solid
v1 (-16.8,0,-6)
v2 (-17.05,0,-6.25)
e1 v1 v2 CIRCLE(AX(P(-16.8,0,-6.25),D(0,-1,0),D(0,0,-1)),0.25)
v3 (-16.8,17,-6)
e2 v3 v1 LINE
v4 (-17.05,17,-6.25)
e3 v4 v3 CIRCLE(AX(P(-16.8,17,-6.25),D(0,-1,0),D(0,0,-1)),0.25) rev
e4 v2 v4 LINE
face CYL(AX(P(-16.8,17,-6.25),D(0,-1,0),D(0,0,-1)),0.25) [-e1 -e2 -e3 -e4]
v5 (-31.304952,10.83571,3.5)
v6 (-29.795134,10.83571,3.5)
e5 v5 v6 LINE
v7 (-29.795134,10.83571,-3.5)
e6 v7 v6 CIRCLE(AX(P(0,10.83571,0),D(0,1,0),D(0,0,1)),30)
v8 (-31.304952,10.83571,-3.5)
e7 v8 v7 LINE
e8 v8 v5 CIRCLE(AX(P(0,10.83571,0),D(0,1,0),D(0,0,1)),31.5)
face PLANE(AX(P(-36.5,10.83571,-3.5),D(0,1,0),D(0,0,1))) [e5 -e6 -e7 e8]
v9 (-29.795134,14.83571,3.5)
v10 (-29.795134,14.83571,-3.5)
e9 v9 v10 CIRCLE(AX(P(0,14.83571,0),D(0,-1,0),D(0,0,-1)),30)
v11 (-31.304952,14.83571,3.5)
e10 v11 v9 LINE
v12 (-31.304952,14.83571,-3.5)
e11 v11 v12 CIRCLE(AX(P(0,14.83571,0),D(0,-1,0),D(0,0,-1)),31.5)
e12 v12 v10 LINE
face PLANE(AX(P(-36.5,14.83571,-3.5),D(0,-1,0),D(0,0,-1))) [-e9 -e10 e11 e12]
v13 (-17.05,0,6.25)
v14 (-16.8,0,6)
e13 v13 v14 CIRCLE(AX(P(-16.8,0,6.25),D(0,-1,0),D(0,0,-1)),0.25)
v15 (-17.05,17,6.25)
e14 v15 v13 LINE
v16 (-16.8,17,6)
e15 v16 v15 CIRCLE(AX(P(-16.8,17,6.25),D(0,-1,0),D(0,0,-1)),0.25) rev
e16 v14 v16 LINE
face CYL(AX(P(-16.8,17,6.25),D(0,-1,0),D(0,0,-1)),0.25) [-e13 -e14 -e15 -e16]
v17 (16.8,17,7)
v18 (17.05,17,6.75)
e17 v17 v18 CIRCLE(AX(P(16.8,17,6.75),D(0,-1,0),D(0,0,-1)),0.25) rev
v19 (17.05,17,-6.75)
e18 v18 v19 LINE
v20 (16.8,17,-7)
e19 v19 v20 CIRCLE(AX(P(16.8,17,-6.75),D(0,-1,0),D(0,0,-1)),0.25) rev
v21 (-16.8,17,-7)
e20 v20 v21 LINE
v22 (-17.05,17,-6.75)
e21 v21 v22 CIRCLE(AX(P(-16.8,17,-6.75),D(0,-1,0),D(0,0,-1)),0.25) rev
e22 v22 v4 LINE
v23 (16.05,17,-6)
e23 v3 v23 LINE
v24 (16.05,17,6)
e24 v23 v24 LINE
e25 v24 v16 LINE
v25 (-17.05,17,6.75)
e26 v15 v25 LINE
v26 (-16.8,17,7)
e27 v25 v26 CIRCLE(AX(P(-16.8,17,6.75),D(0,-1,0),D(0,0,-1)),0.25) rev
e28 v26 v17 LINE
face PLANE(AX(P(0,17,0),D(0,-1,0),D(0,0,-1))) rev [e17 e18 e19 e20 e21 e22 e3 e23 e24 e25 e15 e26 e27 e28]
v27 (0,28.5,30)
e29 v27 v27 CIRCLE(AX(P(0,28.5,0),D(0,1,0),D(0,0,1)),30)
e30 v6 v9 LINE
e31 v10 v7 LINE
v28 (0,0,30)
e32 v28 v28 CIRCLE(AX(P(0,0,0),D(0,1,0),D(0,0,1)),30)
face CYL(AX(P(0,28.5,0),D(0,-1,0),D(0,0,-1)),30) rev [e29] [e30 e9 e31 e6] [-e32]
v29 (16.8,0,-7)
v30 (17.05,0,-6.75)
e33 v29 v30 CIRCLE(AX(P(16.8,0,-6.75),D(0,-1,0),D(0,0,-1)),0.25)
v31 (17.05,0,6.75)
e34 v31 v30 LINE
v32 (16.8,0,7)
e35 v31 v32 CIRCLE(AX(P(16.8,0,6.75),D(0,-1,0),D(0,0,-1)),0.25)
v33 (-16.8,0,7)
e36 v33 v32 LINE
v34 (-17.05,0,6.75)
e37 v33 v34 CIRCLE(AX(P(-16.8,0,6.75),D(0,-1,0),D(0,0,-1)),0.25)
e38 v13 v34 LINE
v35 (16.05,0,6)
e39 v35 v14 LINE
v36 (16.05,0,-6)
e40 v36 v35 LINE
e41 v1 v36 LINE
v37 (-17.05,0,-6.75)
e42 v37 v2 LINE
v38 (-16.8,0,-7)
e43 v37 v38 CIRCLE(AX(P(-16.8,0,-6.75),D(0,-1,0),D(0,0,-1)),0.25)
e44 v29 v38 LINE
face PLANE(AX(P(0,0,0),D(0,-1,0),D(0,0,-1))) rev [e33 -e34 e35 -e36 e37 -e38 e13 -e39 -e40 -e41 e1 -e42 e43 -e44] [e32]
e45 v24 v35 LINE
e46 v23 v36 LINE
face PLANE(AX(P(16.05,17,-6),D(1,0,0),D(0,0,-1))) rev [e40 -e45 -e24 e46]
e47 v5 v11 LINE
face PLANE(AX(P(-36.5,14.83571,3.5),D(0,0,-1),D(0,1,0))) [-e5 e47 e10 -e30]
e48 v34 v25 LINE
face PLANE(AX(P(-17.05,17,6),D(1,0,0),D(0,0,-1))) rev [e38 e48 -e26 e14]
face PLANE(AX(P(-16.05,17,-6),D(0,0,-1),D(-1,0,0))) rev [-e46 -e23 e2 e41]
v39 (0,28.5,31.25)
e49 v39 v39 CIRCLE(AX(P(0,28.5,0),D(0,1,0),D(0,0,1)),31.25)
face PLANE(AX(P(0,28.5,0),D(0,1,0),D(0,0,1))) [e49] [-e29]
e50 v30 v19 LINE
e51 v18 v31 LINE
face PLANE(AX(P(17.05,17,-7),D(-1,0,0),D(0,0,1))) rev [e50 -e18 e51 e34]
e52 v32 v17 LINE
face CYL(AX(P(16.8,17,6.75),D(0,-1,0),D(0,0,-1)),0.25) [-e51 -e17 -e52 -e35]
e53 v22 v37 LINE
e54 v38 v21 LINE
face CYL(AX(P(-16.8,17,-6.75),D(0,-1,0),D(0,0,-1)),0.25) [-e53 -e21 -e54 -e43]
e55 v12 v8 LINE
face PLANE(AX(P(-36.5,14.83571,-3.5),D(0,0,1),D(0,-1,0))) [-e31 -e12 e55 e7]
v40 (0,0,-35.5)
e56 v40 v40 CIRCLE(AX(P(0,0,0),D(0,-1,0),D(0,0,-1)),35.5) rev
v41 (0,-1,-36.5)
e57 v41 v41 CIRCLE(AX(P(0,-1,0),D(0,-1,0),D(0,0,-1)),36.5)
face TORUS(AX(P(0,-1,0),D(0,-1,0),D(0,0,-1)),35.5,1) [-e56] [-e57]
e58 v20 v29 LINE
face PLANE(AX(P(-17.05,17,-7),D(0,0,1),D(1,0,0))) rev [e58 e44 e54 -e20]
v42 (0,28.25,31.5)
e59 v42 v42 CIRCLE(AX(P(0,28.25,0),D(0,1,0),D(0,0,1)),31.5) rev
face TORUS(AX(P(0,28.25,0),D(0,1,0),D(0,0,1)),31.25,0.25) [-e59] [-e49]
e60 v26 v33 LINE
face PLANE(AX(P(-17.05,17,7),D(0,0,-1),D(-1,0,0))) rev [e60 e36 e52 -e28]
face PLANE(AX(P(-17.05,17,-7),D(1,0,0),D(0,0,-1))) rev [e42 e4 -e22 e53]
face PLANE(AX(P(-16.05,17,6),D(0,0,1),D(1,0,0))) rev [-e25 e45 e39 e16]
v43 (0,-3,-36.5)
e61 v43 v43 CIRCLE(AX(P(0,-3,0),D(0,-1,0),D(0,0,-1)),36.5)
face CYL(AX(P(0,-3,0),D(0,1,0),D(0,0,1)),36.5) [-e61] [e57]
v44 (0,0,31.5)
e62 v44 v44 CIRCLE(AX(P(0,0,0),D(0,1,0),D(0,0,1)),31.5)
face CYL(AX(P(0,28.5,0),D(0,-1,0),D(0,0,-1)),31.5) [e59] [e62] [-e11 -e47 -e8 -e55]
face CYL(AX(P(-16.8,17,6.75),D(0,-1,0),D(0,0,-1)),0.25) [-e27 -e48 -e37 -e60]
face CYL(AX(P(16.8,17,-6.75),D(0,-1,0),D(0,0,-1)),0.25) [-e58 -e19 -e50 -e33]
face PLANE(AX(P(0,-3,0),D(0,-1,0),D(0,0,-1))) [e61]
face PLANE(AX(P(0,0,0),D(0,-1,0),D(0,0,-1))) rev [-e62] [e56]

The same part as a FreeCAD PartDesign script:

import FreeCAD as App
import Part
import Sketcher
from FreeCAD import Vector


def edges_at(feature, points):
    """Names of the edges that pass closest to the given points."""
    edges = feature.Shape.Edges
    near = lambda p: min(range(len(edges)), key=lambda i: edges[i].distToShape(Part.Vertex(*p))[0])
    return sorted({f"Edge{near(p) + 1}" for p in points})

doc = App.newDocument("Part")
body = doc.addObject("PartDesign::Body", "Body")

sketch1 = body.newObject("Sketcher::SketchObject", "Sketch")
sketch1.AttachmentSupport = (doc.getObject("XZ_Plane"), [""])
sketch1.MapMode = "FlatFace"
sketch1.addGeometry(Part.Circle(Vector(0, 0, 0), Vector(0, 0, 1), 31.5), False)
sketch1.addGeometry(Part.Circle(Vector(0, 0, 0), Vector(0, 0, 1), 30), False)
sketch1.addConstraint(Sketcher.Constraint("Coincident", 0, 3, -1, 1))
sketch1.addConstraint(Sketcher.Constraint("Coincident", 1, 3, -1, 1))
sketch1.addConstraint(Sketcher.Constraint("Diameter", 0, 63.0))
sketch1.addConstraint(Sketcher.Constraint("Diameter", 1, 60.0))
pad1 = body.newObject("PartDesign::Pad", "Pad")
pad1.Profile = sketch1
pad1.Length = 28.5
pad1.Reversed = True

sketch2 = body.newObject("Sketcher::SketchObject", "Sketch001")
sketch2.AttachmentSupport = (doc.getObject("XZ_Plane"), [""])
sketch2.MapMode = "FlatFace"
sketch2.addGeometry(Part.Circle(Vector(0, 0, 0), Vector(0, 0, 1), 36.5), False)
sketch2.addConstraint(Sketcher.Constraint("Coincident", 0, 3, -1, 1))
sketch2.addConstraint(Sketcher.Constraint("Diameter", 0, 73.0))
pad2 = body.newObject("PartDesign::Pad", "Pad001")
pad2.Profile = sketch2
pad2.Length = 3

sketch3 = body.newObject("Sketcher::SketchObject", "Sketch002")
sketch3.AttachmentSupport = (doc.getObject("XZ_Plane"), [""])
sketch3.MapMode = "FlatFace"
sketch3.addGeometry(Part.LineSegment(Vector(-17.05, -6, 0), Vector(16.05, -6, 0)), False)
sketch3.addGeometry(Part.LineSegment(Vector(16.05, -6, 0), Vector(16.05, 6, 0)), False)
sketch3.addGeometry(Part.LineSegment(Vector(16.05, 6, 0), Vector(-17.05, 6, 0)), False)
sketch3.addGeometry(Part.LineSegment(Vector(-17.05, 6, 0), Vector(-17.05, 7, 0)), False)
sketch3.addGeometry(Part.LineSegment(Vector(-17.05, 7, 0), Vector(17.05, 7, 0)), False)
sketch3.addGeometry(Part.LineSegment(Vector(17.05, 7, 0), Vector(17.05, -7, 0)), False)
sketch3.addGeometry(Part.LineSegment(Vector(17.05, -7, 0), Vector(-17.05, -7, 0)), False)
sketch3.addGeometry(Part.LineSegment(Vector(-17.05, -7, 0), Vector(-17.05, -6, 0)), False)
sketch3.addConstraint(Sketcher.Constraint("Coincident", 0, 2, 1, 1))
sketch3.addConstraint(Sketcher.Constraint("Coincident", 1, 2, 2, 1))
sketch3.addConstraint(Sketcher.Constraint("Coincident", 2, 2, 3, 1))
sketch3.addConstraint(Sketcher.Constraint("Coincident", 3, 2, 4, 1))
sketch3.addConstraint(Sketcher.Constraint("Coincident", 4, 2, 5, 1))
sketch3.addConstraint(Sketcher.Constraint("Coincident", 5, 2, 6, 1))
sketch3.addConstraint(Sketcher.Constraint("Coincident", 6, 2, 7, 1))
sketch3.addConstraint(Sketcher.Constraint("Coincident", 7, 2, 0, 1))
sketch3.addConstraint(Sketcher.Constraint("Horizontal", 0))
sketch3.addConstraint(Sketcher.Constraint("Vertical", 1))
sketch3.addConstraint(Sketcher.Constraint("Horizontal", 2))
sketch3.addConstraint(Sketcher.Constraint("Vertical", 3))
sketch3.addConstraint(Sketcher.Constraint("Horizontal", 4))
sketch3.addConstraint(Sketcher.Constraint("Vertical", 5))
sketch3.addConstraint(Sketcher.Constraint("Horizontal", 6))
sketch3.addConstraint(Sketcher.Constraint("Vertical", 7))
sketch3.addConstraint(Sketcher.Constraint("Symmetric", 3, 2, 5, 2, -1, 1))
sketch3.addConstraint(Sketcher.Constraint("Symmetric", 2, 2, 7, 2, -1))
sketch3.addConstraint(Sketcher.Constraint("DistanceY", 1, 1, 1, 2, 12.0))
sketch3.addConstraint(Sketcher.Constraint("DistanceY", 3, 1, 3, 2, 1.0))
sketch3.addConstraint(Sketcher.Constraint("DistanceX", 0, 1, 0, 2, 33.1))
sketch3.addConstraint(Sketcher.Constraint("DistanceX", 4, 1, 4, 2, 34.1))
pad3 = body.newObject("PartDesign::Pad", "Pad002")
pad3.Profile = sketch3
pad3.Length = 17
pad3.Reversed = True

sketch4 = body.newObject("Sketcher::SketchObject", "Sketch003")
sketch4.AttachmentSupport = (doc.getObject("YZ_Plane"), [""])
sketch4.MapMode = "FlatFace"
sketch4.AttachmentOffset = App.Placement(Vector(0, 0, 16.05), App.Rotation())
sketch4.addGeometry(Part.LineSegment(Vector(14.83571, -3.5, 0), Vector(10.83571, -3.5, 0)), False)
sketch4.addGeometry(Part.LineSegment(Vector(10.83571, -3.5, 0), Vector(10.83571, 3.5, 0)), False)
sketch4.addGeometry(Part.LineSegment(Vector(10.83571, 3.5, 0), Vector(14.83571, 3.5, 0)), False)
sketch4.addGeometry(Part.LineSegment(Vector(14.83571, 3.5, 0), Vector(14.83571, -3.5, 0)), False)
sketch4.addConstraint(Sketcher.Constraint("Coincident", 0, 2, 1, 1))
sketch4.addConstraint(Sketcher.Constraint("Coincident", 1, 2, 2, 1))
sketch4.addConstraint(Sketcher.Constraint("Coincident", 2, 2, 3, 1))
sketch4.addConstraint(Sketcher.Constraint("Coincident", 3, 2, 0, 1))
sketch4.addConstraint(Sketcher.Constraint("Horizontal", 0))
sketch4.addConstraint(Sketcher.Constraint("Vertical", 1))
sketch4.addConstraint(Sketcher.Constraint("Horizontal", 2))
sketch4.addConstraint(Sketcher.Constraint("Vertical", 3))
sketch4.addConstraint(Sketcher.Constraint("DistanceX", 0, 2, 0, 1, 4.0))
sketch4.addConstraint(Sketcher.Constraint("DistanceY", 1, 1, 1, 2, 7.0))
sketch4.addConstraint(Sketcher.Constraint("DistanceY", 0, 2, -1, 1, 3.5))
sketch4.addConstraint(Sketcher.Constraint("DistanceX", -1, 1, 0, 2, 10.83571))
pocket1 = body.newObject("PartDesign::Pocket", "Pocket")
pocket1.Profile = sketch4
pocket1.Type = "ThroughAll"
doc.recompute()

fillet = body.newObject("PartDesign::Fillet", "Fillet")
fillet.Base = (pocket1, edges_at(pocket1, [(0, 0, 36.5)]))
fillet.Radius = 1
doc.recompute()

fillet2 = body.newObject("PartDesign::Fillet", "Fillet001")
fillet2.Base = (fillet, edges_at(fillet, [(0, 28.5, 31.5)]))
fillet2.Radius = 0.25
doc.recompute()

fillet3 = body.newObject("PartDesign::Fillet", "Fillet002")
fillet3.Base = (fillet2, edges_at(fillet2, [
    (-17.05, 8.5, 6),
    (-17.05, 8.5, 7),
    (17.05, 8.5, 7),
    (17.05, 8.5, -7),
    (-17.05, 8.5, -7),
    (-17.05, 8.5, -6),
]))
fillet3.Radius = 0.25

doc.recompute()
